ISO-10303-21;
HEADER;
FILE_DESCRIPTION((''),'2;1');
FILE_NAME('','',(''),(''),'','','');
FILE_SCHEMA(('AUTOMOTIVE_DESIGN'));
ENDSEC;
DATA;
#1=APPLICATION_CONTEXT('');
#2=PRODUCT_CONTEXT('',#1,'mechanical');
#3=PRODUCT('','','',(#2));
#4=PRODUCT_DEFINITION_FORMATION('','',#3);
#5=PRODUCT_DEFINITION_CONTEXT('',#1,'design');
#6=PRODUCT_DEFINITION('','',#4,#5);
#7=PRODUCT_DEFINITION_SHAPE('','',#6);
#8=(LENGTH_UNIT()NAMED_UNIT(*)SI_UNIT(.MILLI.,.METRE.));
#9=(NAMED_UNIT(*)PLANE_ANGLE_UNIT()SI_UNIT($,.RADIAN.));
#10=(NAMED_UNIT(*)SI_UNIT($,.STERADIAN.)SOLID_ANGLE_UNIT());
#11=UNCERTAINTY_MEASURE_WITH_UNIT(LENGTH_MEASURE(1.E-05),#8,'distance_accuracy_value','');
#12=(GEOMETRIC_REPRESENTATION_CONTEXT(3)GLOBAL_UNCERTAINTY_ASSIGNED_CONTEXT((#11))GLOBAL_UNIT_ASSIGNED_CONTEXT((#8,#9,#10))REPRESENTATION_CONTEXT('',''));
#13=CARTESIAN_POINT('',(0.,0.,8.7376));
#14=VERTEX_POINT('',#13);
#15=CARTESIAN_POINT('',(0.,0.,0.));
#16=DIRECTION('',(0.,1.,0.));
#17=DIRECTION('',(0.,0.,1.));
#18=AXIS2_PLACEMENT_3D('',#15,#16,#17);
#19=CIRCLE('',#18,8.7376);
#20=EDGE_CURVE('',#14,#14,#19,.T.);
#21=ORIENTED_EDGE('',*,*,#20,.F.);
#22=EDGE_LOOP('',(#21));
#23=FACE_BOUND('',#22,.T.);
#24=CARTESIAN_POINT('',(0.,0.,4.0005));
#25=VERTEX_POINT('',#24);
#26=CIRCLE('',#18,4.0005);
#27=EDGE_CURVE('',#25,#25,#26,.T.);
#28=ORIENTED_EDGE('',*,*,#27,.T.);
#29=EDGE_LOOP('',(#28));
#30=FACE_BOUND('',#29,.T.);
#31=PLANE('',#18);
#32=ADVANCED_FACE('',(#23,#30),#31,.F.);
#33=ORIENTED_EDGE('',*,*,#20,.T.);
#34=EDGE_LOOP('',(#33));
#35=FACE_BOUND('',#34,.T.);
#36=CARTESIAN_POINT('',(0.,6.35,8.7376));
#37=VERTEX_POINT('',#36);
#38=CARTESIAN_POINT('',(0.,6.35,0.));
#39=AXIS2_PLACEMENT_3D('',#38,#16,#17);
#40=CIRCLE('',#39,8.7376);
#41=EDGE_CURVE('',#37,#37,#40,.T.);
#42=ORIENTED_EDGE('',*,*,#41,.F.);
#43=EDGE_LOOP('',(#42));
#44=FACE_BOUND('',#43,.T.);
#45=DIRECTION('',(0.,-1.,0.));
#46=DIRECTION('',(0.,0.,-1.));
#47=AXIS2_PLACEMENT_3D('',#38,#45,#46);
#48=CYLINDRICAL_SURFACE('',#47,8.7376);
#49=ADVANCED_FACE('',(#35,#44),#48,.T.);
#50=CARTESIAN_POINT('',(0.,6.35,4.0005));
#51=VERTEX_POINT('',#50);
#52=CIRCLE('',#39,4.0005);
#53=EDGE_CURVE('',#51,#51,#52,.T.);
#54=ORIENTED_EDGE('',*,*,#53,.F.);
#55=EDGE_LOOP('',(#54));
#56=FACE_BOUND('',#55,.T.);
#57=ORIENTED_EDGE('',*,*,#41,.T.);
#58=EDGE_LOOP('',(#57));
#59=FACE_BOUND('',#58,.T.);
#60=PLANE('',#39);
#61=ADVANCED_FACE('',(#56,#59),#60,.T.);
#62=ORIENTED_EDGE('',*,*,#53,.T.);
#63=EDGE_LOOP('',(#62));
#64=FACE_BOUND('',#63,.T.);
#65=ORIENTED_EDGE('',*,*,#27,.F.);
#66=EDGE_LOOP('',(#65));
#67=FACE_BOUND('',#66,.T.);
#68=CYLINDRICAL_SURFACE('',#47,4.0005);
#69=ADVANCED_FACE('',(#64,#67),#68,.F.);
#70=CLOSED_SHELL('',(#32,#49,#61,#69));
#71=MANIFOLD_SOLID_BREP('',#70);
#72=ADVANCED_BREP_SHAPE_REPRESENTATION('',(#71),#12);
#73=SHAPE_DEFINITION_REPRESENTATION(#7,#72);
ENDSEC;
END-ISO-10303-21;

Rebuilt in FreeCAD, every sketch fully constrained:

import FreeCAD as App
import Part
import Sketcher
from FreeCAD import Vector
Q = App.Units.Quantity

doc = App.newDocument("Part")
body = doc.addObject("PartDesign::Body", "Body")

# Sketch on XZ plane
sketch1 = body.newObject("Sketcher::SketchObject", "Sketch")
sketch1.AttachmentSupport = (doc.getObject("XZ_Plane"), [""])
sketch1.MapMode = "FlatFace"
sketch1.addGeometry([
    Part.Circle(Vector(0, 0, 0), Vector(0, 0, 1), 8.7),
    Part.Circle(Vector(0, 0, 0), Vector(0, 0, 1), 4),
], False)
sketch1.addConstraint([
    Sketcher.Constraint("Coincident", 0, 3, -1, 1),
    Sketcher.Constraint("Coincident", 1, 3, -1, 1),
    Sketcher.Constraint("Diameter", 0, Q("0.688 in")),
    Sketcher.Constraint("Diameter", 1, Q("0.315 in")),
])
pad1 = body.newObject("PartDesign::Pad", "Pad")
pad1.Profile = sketch1
pad1.Length = Q("0.25 in")
pad1.Reversed = True

doc.recompute()
